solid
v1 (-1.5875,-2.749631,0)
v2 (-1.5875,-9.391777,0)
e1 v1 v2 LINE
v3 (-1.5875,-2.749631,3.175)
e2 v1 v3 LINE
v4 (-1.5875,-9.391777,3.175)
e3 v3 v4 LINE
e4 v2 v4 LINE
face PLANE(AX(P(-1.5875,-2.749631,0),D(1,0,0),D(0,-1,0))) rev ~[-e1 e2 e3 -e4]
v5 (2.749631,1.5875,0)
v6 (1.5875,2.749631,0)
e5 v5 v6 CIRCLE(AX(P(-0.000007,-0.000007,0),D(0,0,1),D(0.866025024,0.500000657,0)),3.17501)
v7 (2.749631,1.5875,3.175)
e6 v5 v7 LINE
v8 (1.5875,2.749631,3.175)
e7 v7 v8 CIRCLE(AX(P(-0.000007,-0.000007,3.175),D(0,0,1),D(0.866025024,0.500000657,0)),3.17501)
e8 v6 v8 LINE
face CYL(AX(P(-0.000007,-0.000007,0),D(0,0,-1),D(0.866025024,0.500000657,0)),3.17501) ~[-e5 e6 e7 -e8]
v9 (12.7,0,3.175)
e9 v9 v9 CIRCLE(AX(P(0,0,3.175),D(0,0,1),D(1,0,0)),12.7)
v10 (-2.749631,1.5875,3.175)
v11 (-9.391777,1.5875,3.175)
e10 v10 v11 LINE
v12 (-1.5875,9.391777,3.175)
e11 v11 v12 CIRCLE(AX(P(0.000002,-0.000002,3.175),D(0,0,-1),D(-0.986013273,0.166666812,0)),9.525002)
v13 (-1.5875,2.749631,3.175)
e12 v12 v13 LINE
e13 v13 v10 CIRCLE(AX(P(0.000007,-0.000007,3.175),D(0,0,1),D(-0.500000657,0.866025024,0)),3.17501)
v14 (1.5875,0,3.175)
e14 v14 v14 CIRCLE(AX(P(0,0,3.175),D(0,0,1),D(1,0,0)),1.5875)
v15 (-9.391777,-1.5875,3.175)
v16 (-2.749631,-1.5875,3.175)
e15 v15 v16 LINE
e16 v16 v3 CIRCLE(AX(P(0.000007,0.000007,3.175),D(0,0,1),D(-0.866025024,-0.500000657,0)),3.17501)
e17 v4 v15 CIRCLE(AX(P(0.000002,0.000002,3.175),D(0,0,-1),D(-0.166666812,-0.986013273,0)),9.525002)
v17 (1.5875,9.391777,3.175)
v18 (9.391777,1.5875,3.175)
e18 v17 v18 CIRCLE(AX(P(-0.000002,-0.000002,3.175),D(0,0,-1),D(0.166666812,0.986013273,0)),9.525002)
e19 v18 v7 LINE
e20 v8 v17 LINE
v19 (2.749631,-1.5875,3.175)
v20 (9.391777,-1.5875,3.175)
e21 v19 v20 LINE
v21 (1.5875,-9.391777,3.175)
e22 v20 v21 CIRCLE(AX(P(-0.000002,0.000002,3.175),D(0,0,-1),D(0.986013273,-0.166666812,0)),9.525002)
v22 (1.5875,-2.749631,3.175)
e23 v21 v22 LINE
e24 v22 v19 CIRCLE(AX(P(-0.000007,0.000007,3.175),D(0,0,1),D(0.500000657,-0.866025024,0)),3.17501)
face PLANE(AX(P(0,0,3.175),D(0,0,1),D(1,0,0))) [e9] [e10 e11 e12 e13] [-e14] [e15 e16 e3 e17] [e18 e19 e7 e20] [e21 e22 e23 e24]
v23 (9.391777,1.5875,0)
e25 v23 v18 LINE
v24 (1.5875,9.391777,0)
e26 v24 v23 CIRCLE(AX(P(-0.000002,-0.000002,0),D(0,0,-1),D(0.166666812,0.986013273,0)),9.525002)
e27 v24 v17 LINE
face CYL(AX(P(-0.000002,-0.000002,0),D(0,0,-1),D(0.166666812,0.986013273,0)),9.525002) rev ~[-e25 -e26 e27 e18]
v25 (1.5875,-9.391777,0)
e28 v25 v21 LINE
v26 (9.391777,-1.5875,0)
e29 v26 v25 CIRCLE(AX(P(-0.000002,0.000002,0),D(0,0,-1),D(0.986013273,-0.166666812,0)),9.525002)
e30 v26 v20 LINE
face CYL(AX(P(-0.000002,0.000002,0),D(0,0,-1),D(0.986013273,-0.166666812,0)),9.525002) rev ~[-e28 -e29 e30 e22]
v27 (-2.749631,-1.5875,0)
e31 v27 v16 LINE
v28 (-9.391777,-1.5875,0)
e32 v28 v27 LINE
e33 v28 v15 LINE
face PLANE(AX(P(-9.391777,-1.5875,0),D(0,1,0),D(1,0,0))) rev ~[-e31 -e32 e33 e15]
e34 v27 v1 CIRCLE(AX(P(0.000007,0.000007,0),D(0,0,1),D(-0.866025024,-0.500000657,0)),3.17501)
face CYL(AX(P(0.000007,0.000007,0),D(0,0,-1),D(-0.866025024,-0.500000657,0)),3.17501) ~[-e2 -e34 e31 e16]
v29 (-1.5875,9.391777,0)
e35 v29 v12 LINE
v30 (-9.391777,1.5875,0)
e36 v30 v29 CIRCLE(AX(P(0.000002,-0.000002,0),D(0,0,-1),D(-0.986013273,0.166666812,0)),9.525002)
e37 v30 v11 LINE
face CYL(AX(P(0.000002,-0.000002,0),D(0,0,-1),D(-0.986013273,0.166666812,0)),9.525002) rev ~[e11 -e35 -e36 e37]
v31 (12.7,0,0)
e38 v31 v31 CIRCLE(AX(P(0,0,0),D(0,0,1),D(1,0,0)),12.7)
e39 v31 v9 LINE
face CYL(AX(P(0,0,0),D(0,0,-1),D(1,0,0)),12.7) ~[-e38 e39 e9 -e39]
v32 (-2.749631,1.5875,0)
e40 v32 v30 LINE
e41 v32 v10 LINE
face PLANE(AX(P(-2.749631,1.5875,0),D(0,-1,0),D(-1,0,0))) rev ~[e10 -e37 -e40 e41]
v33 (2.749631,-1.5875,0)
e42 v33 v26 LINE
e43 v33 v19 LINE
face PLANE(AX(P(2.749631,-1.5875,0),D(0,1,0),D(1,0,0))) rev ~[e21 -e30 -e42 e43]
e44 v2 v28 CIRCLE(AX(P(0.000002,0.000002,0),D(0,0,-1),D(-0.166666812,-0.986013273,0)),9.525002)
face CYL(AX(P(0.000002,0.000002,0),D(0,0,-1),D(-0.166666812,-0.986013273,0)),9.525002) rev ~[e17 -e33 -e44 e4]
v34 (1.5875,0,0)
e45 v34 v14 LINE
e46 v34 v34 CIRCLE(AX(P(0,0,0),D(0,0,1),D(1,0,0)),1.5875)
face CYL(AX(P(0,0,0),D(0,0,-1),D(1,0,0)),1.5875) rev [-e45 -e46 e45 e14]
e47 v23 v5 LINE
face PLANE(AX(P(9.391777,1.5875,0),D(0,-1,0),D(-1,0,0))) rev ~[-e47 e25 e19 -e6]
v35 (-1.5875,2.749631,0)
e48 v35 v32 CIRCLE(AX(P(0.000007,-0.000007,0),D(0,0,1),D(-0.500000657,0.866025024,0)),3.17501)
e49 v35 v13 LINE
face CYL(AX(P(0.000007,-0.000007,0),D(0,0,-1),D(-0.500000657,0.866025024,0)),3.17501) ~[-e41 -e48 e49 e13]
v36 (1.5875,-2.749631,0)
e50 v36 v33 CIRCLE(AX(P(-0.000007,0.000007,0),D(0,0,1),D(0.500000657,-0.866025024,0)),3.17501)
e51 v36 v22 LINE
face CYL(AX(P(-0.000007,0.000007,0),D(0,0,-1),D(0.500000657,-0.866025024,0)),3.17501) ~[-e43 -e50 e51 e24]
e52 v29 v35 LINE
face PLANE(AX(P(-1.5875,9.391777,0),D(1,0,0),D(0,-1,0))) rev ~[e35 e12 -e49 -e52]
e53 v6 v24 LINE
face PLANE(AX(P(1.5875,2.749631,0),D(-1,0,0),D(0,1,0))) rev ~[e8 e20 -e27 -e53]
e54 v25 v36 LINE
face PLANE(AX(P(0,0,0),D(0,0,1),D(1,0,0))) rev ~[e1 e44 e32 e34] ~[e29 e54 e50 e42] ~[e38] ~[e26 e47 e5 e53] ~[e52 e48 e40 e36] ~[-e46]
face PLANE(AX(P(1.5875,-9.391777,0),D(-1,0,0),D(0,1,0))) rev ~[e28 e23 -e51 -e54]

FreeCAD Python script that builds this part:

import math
import FreeCAD as App
import Part
import Sketcher
Q = App.Units.Quantity

doc = App.newDocument("Part")
params = doc.addObject("Spreadsheet::Sheet", "Params")
for row, (alias, value) in enumerate([
    ("sketch1_diameter", "1 in"),
    ("sketch1_diameter2", "0.125 in"),
    ("sketch1_radius", "0.3750001 in"),
    ("pad1_length", "0.125 in"),
], start=1):
    params.set(f"A{row}", alias)
    params.set(f"B{row}", "=" + value)
    params.setAlias(f"B{row}", alias)

body = doc.addObject("PartDesign::Body", "Body")

sketch1 = doc.addObject("Sketcher::SketchObject", "Sketch")
body.addObject(sketch1)
sketch1.AttachmentSupport = (doc.XY_Plane, [""])
sketch1.MapMode = "FlatFace"
sketch1.addGeometry([
    Part.Circle(App.Vector(0, 0, 0), App.Vector(0, 0, 1), 12.7),
    Part.LineSegment(App.Vector(-1.6, -2.7, 0), App.Vector(-1.6, -9.4, 0)),
    Part.ArcOfCircle(Part.Circle(App.Vector(0, 0, 0), App.Vector(0, 0, 1), 9.5), math.radians(-170), math.radians(-100)),
    Part.LineSegment(App.Vector(-9.4, -1.6, 0), App.Vector(-2.7, -1.6, 0)),
    Part.ArcOfCircle(Part.Circle(App.Vector(0, 0, 0), App.Vector(0, 0, 1), 3.2), math.radians(-150), math.radians(-120)),
    Part.ArcOfCircle(Part.Circle(App.Vector(0, 0, 0), App.Vector(0, 0, 1), 9.5), math.radians(-80), math.radians(-10)),
    Part.LineSegment(App.Vector(1.6, -9.4, 0), App.Vector(1.6, -2.7, 0)),
    Part.ArcOfCircle(Part.Circle(App.Vector(0, 0, 0), App.Vector(0, 0, 1), 3.2), math.radians(-60), math.radians(-30)),
    Part.LineSegment(App.Vector(2.7, -1.6, 0), App.Vector(9.4, -1.6, 0)),
    Part.ArcOfCircle(Part.Circle(App.Vector(0, 0, 0), App.Vector(0, 0, 1), 9.5), math.radians(100), math.radians(170)),
    Part.LineSegment(App.Vector(-1.6, 9.4, 0), App.Vector(-1.6, 2.7, 0)),
    Part.ArcOfCircle(Part.Circle(App.Vector(0, 0, 0), App.Vector(0, 0, 1), 3.2), math.radians(120), math.radians(150)),
    Part.LineSegment(App.Vector(-2.7, 1.6, 0), App.Vector(-9.4, 1.6, 0)),
    Part.Circle(App.Vector(0, 0, 0), App.Vector(0, 0, 1), 1.6),
    Part.LineSegment(App.Vector(9.4, 1.6, 0), App.Vector(2.7, 1.6, 0)),
    Part.ArcOfCircle(Part.Circle(App.Vector(0, 0, 0), App.Vector(0, 0, 1), 3.2), math.radians(30), math.radians(60)),
    Part.LineSegment(App.Vector(1.6, 2.7, 0), App.Vector(1.6, 9.4, 0)),
    Part.ArcOfCircle(Part.Circle(App.Vector(0, 0, 0), App.Vector(0, 0, 1), 9.5), math.radians(10), math.radians(80)),
], False)
sketch1.addConstraint([
    Sketcher.Constraint("Coincident", 1, 2, 2, 2),
    Sketcher.Constraint("Coincident", 2, 1, 3, 1),
    Sketcher.Constraint("Coincident", 3, 2, 4, 1),
    Sketcher.Constraint("Coincident", 4, 2, 1, 1),
    Sketcher.Constraint("Coincident", 5, 1, 6, 1),
    Sketcher.Constraint("Coincident", 6, 2, 7, 1),
    Sketcher.Constraint("Coincident", 7, 2, 8, 1),
    Sketcher.Constraint("Coincident", 8, 2, 5, 2),
    Sketcher.Constraint("Coincident", 9, 1, 10, 1),
    Sketcher.Constraint("Coincident", 10, 2, 11, 1),
    Sketcher.Constraint("Coincident", 11, 2, 12, 1),
    Sketcher.Constraint("Coincident", 12, 2, 9, 2),
    Sketcher.Constraint("Coincident", 14, 2, 15, 1),
    Sketcher.Constraint("Coincident", 15, 2, 16, 1),
    Sketcher.Constraint("Coincident", 16, 2, 17, 2),
    Sketcher.Constraint("Coincident", 17, 1, 14, 1),
    Sketcher.Constraint("Vertical", 1),
    Sketcher.Constraint("Horizontal", 3),
    Sketcher.Constraint("Vertical", 6),
    Sketcher.Constraint("Horizontal", 8),
    Sketcher.Constraint("Vertical", 10),
    Sketcher.Constraint("Horizontal", 12),
    Sketcher.Constraint("Horizontal", 14),
    Sketcher.Constraint("Vertical", 16),
    Sketcher.Constraint("Coincident", 0, 3, -1, 1),
    Sketcher.Constraint("Coincident", 2, 3, -1, 1),
    Sketcher.Constraint("Coincident", 4, 3, -1, 1),
    Sketcher.Constraint("Coincident", 5, 3, -1, 1),
    Sketcher.Constraint("Coincident", 7, 3, -1, 1),
    Sketcher.Constraint("Coincident", 9, 3, -1, 1),
    Sketcher.Constraint("Coincident", 11, 3, -1, 1),
    Sketcher.Constraint("Coincident", 13, 3, -1, 1),
    Sketcher.Constraint("Coincident", 15, 3, -1, 1),
    Sketcher.Constraint("Coincident", 17, 3, -1, 1),
    Sketcher.Constraint("Equal", 2, 5),
    Sketcher.Constraint("Equal", 4, 7),
    Sketcher.Constraint("Equal", 5, 9),
    Sketcher.Constraint("Equal", 7, 11),
    Sketcher.Constraint("Equal", 11, 15),
    Sketcher.Constraint("Equal", 9, 17),
    Sketcher.Constraint("Horizontal", 1, 2, 5, 1),
    Sketcher.Constraint("Horizontal", 3, 2, 7, 2),
    Sketcher.Constraint("Horizontal", 12, 2, 14, 2),
    Sketcher.Constraint("Horizontal", 10, 2, 15, 2),
    Sketcher.Constraint("Vertical", 4, 2, 9, 1),
    Sketcher.Constraint("Vertical", 3, 2, 11, 2),
    Sketcher.Constraint("Equal", 14, 1),
    Sketcher.Constraint("Diameter", 0, Q("1 in")),
    Sketcher.Constraint("Diameter", 13, Q("0.125 in")),
    Sketcher.Constraint("Radius", 2, Q("0.3750001 in")),
    Sketcher.Constraint("DistanceX", 1, 2, -1, 1, Q("0.0625 in")),
    Sketcher.Constraint("Radius", 4, 3.17501),
])
sketch1.setExpression("Constraints[47]", "Params.sketch1_diameter")
sketch1.setExpression("Constraints[48]", "Params.sketch1_diameter2")
sketch1.setExpression("Constraints[49]", "Params.sketch1_radius")
pad1 = doc.addObject("PartDesign::Pad", "Pad")
body.addObject(pad1)
pad1.Profile = sketch1
pad1.setExpression("Length", "Params.pad1_length")

doc.recompute()
